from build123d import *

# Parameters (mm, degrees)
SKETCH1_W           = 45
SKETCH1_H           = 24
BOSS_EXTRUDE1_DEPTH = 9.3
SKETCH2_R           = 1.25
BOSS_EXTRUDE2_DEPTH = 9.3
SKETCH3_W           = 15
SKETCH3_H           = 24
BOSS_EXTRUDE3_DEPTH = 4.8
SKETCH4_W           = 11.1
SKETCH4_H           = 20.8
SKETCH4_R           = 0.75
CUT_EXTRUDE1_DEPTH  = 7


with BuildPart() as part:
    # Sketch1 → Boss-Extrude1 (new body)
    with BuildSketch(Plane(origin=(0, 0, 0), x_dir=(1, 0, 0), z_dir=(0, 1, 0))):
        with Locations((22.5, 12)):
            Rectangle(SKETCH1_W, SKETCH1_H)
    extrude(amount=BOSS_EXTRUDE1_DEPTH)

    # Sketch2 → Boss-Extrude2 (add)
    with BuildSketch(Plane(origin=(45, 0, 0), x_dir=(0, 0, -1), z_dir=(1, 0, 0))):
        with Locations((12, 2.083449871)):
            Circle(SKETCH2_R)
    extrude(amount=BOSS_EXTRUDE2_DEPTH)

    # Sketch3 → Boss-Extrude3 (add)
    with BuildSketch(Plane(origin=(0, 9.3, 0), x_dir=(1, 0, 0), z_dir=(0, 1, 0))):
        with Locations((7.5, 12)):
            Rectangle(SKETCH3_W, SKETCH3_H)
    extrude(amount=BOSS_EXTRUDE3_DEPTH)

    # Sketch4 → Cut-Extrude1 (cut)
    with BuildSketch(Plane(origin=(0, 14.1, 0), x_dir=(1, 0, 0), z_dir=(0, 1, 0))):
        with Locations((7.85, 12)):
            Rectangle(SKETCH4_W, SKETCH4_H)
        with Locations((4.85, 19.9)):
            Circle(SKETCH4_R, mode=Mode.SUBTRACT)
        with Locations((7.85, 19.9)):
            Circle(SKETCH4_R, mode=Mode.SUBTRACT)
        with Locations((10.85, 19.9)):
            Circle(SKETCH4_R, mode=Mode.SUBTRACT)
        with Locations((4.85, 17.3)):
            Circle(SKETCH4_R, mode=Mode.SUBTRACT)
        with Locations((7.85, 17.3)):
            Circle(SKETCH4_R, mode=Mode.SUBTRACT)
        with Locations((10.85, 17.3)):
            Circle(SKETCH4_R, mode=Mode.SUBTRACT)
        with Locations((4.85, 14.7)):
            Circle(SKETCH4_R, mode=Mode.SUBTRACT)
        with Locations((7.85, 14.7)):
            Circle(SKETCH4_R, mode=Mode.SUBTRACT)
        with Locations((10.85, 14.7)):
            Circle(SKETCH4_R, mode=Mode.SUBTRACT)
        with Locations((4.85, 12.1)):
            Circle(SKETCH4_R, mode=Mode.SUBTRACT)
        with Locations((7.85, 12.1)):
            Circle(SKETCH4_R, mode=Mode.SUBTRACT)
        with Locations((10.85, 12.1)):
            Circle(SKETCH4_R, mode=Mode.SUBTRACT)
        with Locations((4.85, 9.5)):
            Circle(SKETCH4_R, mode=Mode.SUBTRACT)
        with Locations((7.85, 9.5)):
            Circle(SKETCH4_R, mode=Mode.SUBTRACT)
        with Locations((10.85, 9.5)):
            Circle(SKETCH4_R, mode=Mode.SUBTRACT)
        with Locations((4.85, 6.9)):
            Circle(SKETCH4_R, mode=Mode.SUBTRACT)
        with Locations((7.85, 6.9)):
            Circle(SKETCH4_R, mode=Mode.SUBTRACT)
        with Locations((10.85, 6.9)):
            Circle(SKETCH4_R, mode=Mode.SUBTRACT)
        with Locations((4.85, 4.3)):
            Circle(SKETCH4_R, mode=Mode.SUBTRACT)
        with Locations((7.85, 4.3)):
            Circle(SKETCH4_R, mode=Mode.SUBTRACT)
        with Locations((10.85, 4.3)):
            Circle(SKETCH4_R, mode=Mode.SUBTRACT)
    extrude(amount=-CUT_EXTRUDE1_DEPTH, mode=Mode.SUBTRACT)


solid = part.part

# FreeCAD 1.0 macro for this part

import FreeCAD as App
import Part
import Sketcher

V = App.Vector
Q = App.Units.Quantity

doc = App.newDocument("Part")
params = doc.addObject("Spreadsheet::Sheet", "Params")
for row, (alias, value) in enumerate([
    ("sketch1_width", "45 mm"),
    ("sketch1_height", "24 mm"),
    ("pad1_length", "9.3 mm"),
    ("sketch2_diameter", "2.5 mm"),
    ("pad2_length", "9.3 mm"),
    ("sketch3_width", "15 mm"),
    ("sketch3_height", "24 mm"),
    ("pad3_length", "4.8 mm"),
    ("sketch4_diameter", "1.5 mm"),
    ("sketch4_width", "11.1 mm"),
    ("sketch4_height", "20.8 mm"),
    ("pocket1_length", "7 mm"),
], start=1):
    params.set(f"A{row}", alias)
    params.set(f"B{row}", "=" + value)
    params.setAlias(f"B{row}", alias)

body = doc.addObject("PartDesign::Body", "Body")

# Sketch on XZ plane
sketch1 = body.newObject("Sketcher::SketchObject", "Sketch")
sketch1.AttachmentSupport = (doc.getObject("XZ_Plane"), [""])
sketch1.MapMode = "FlatFace"
sketch1.addGeometry([
    Part.LineSegment(V(0, -24, 0), V(0, 0, 0)),
    Part.LineSegment(V(0, 0, 0), V(45, 0, 0)),
    Part.LineSegment(V(45, 0, 0), V(45, -24, 0)),
    Part.LineSegment(V(45, -24, 0), V(0, -24, 0)),
], False)
sketch1.addConstraint([
    Sketcher.Constraint("Coincident", 0, 2, 1, 1),
    Sketcher.Constraint("Coincident", 1, 2, 2, 1),
    Sketcher.Constraint("Coincident", 2, 2, 3, 1),
    Sketcher.Constraint("Coincident", 3, 2, 0, 1),
    Sketcher.Constraint("Vertical", 0),
    Sketcher.Constraint("Horizontal", 1),
    Sketcher.Constraint("Vertical", 2),
    Sketcher.Constraint("Horizontal", 3),
    Sketcher.Constraint("Coincident", 0, 2, -1, 1),
    Sketcher.Constraint("DistanceX", 1, 1, 1, 2, Q("45 mm")),
    Sketcher.Constraint("DistanceY", 0, 1, 0, 2, Q("24 mm")),
])
sketch1.setExpression("Constraints[9]", "Params.sketch1_width")
sketch1.setExpression("Constraints[10]", "Params.sketch1_height")
pad1 = body.newObject("PartDesign::Pad", "Pad")
pad1.Profile = sketch1
pad1.setExpression("Length", "Params.pad1_length")
pad1.Reversed = True

# Sketch on YZ plane
sketch2 = body.newObject("Sketcher::SketchObject", "Sketch001")
sketch2.AttachmentSupport = (doc.getObject("YZ_Plane"), [""])
sketch2.MapMode = "FlatFace"
sketch2.AttachmentOffset = App.Placement(V(0, 0, 45), App.Rotation())
sketch2.addGeometry(Part.Circle(V(2.08345, -12, 0), V(0, 0, 1), 1.25), False)
sketch2.addConstraint([
    Sketcher.Constraint("Diameter", 0, Q("2.5 mm")),
    Sketcher.Constraint("DistanceY", 0, 3, -1, 1, Q("12 mm")),
    Sketcher.Constraint("DistanceX", -1, 1, 0, 3, Q("2.08345 mm")),
])
sketch2.setExpression("Constraints[0]", "Params.sketch2_diameter")
pad2 = body.newObject("PartDesign::Pad", "Pad001")
pad2.Profile = sketch2
pad2.setExpression("Length", "Params.pad2_length")

# Sketch on XZ plane
sketch3 = body.newObject("Sketcher::SketchObject", "Sketch002")
sketch3.AttachmentSupport = (doc.getObject("XZ_Plane"), [""])
sketch3.MapMode = "FlatFace"
sketch3.AttachmentOffset = App.Placement(V(0, 0, -9.3), App.Rotation())
sketch3.addGeometry([
    Part.LineSegment(V(0, -24, 0), V(0, 0, 0)),
    Part.LineSegment(V(0, 0, 0), V(15, 0, 0)),
    Part.LineSegment(V(15, 0, 0), V(15, -24, 0)),
    Part.LineSegment(V(15, -24, 0), V(0, -24, 0)),
], False)
sketch3.addConstraint([
    Sketcher.Constraint("Coincident", 0, 2, 1, 1),
    Sketcher.Constraint("Coincident", 1, 2, 2, 1),
    Sketcher.Constraint("Coincident", 2, 2, 3, 1),
    Sketcher.Constraint("Coincident", 3, 2, 0, 1),
    Sketcher.Constraint("Vertical", 0),
    Sketcher.Constraint("Horizontal", 1),
    Sketcher.Constraint("Vertical", 2),
    Sketcher.Constraint("Horizontal", 3),
    Sketcher.Constraint("Coincident", 0, 2, -1, 1),
    Sketcher.Constraint("DistanceX", 1, 1, 1, 2, Q("15 mm")),
    Sketcher.Constraint("DistanceY", 0, 1, 0, 2, Q("24 mm")),
])
sketch3.setExpression("Constraints[9]", "Params.sketch3_width")
sketch3.setExpression("Constraints[10]", "Params.sketch3_height")
pad3 = body.newObject("PartDesign::Pad", "Pad002")
pad3.Profile = sketch3
pad3.setExpression("Length", "Params.pad3_length")
pad3.Reversed = True

# Sketch on XZ plane
sketch4 = body.newObject("Sketcher::SketchObject", "Sketch003")
sketch4.AttachmentSupport = (doc.getObject("XZ_Plane"), [""])
sketch4.MapMode = "FlatFace"
sketch4.AttachmentOffset = App.Placement(V(0, 0, -14.1), App.Rotation())
sketch4.addGeometry([
    Part.LineSegment(V(2.3, -22.4, 0), V(2.3, -1.6, 0)),  # 0
    Part.LineSegment(V(2.3, -1.6, 0), V(13.4, -1.6, 0)),  # 1
    Part.LineSegment(V(13.4, -1.6, 0), V(13.4, -22.4, 0)),  # 2
    Part.LineSegment(V(13.4, -22.4, 0), V(2.3, -22.4, 0)),  # 3
    Part.Circle(V(4.85, -4.3, 0), V(0, 0, 1), 0.75),  # 4
    Part.Circle(V(4.85, -6.9, 0), V(0, 0, 1), 0.75),  # 5
    Part.Circle(V(4.85, -9.5, 0), V(0, 0, 1), 0.75),  # 6
    Part.Circle(V(7.85, -4.3, 0), V(0, 0, 1), 0.75),  # 7
    Part.Circle(V(7.85, -6.9, 0), V(0, 0, 1), 0.75),  # 8
    Part.Circle(V(10.85, -4.3, 0), V(0, 0, 1), 0.75),  # 9
    Part.Circle(V(10.85, -6.9, 0), V(0, 0, 1), 0.75),  # 10
    Part.Circle(V(7.85, -9.5, 0), V(0, 0, 1), 0.75),  # 11
    Part.Circle(V(10.85, -9.5, 0), V(0, 0, 1), 0.75),  # 12
    Part.Circle(V(4.85, -12.1, 0), V(0, 0, 1), 0.75),  # 13
    Part.Circle(V(4.85, -14.7, 0), V(0, 0, 1), 0.75),  # 14
    Part.Circle(V(4.85, -17.3, 0), V(0, 0, 1), 0.75),  # 15
    Part.Circle(V(4.85, -19.9, 0), V(0, 0, 1), 0.75),  # 16
    Part.Circle(V(7.85, -12.1, 0), V(0, 0, 1), 0.75),  # 17
    Part.Circle(V(7.85, -14.7, 0), V(0, 0, 1), 0.75),  # 18
    Part.Circle(V(10.85, -12.1, 0), V(0, 0, 1), 0.75),  # 19
    Part.Circle(V(10.85, -14.7, 0), V(0, 0, 1), 0.75),  # 20
    Part.Circle(V(7.85, -17.3, 0), V(0, 0, 1), 0.75),  # 21
    Part.Circle(V(7.85, -19.9, 0), V(0, 0, 1), 0.75),  # 22
    Part.Circle(V(10.85, -17.3, 0), V(0, 0, 1), 0.75),  # 23
    Part.Circle(V(10.85, -19.9, 0), V(0, 0, 1), 0.75),  # 24
], False)
sketch4.addConstraint([
    Sketcher.Constraint("Coincident", 0, 2, 1, 1),
    Sketcher.Constraint("Coincident", 1, 2, 2, 1),
    Sketcher.Constraint("Coincident", 2, 2, 3, 1),
    Sketcher.Constraint("Coincident", 3, 2, 0, 1),
    Sketcher.Constraint("Vertical", 0),
    Sketcher.Constraint("Horizontal", 1),
    Sketcher.Constraint("Vertical", 2),
    Sketcher.Constraint("Horizontal", 3),
    Sketcher.Constraint("Equal", 4, 5),
    Sketcher.Constraint("Equal", 5, 6),
    Sketcher.Constraint("Equal", 6, 7),
    Sketcher.Constraint("Equal", 7, 8),
    Sketcher.Constraint("Equal", 8, 9),
    Sketcher.Constraint("Equal", 9, 10),
    Sketcher.Constraint("Equal", 10, 11),
    Sketcher.Constraint("Equal", 11, 12),
    Sketcher.Constraint("Equal", 12, 13),
    Sketcher.Constraint("Equal", 13, 14),
    Sketcher.Constraint("Equal", 14, 15),
    Sketcher.Constraint("Equal", 15, 16),
    Sketcher.Constraint("Equal", 16, 17),
    Sketcher.Constraint("Equal", 17, 18),
    Sketcher.Constraint("Equal", 18, 19),
    Sketcher.Constraint("Equal", 19, 20),
    Sketcher.Constraint("Equal", 20, 21),
    Sketcher.Constraint("Equal", 21, 22),
    Sketcher.Constraint("Equal", 22, 23),
    Sketcher.Constraint("Equal", 23, 24),
    Sketcher.Constraint("Horizontal", 4, 3, 7, 3),
    Sketcher.Constraint("Horizontal", 5, 3, 8, 3),
    Sketcher.Constraint("Horizontal", 7, 3, 9, 3),
    Sketcher.Constraint("Horizontal", 8, 3, 10, 3),
    Sketcher.Constraint("Horizontal", 6, 3, 11, 3),
    Sketcher.Constraint("Horizontal", 11, 3, 12, 3),
    Sketcher.Constraint("Horizontal", 13, 3, 17, 3),
    Sketcher.Constraint("Horizontal", 14, 3, 18, 3),
    Sketcher.Constraint("Horizontal", 17, 3, 19, 3),
    Sketcher.Constraint("Horizontal", 18, 3, 20, 3),
    Sketcher.Constraint("Horizontal", 15, 3, 21, 3),
    Sketcher.Constraint("Horizontal", 16, 3, 22, 3),
    Sketcher.Constraint("Horizontal", 21, 3, 23, 3),
    Sketcher.Constraint("Horizontal", 22, 3, 24, 3),
    Sketcher.Constraint("Vertical", 4, 3, 5, 3),
    Sketcher.Constraint("Vertical", 5, 3, 6, 3),
    Sketcher.Constraint("Vertical", 7, 3, 8, 3),
    Sketcher.Constraint("Vertical", 9, 3, 10, 3),
    Sketcher.Constraint("Vertical", 8, 3, 11, 3),
    Sketcher.Constraint("Vertical", 10, 3, 12, 3),
    Sketcher.Constraint("Vertical", 6, 3, 13, 3),
    Sketcher.Constraint("Vertical", 13, 3, 14, 3),
    Sketcher.Constraint("Vertical", 14, 3, 15, 3),
    Sketcher.Constraint("Vertical", 15, 3, 16, 3),
    Sketcher.Constraint("Vertical", 11, 3, 17, 3),
    Sketcher.Constraint("Vertical", 17, 3, 18, 3),
    Sketcher.Constraint("Vertical", 12, 3, 19, 3),
    Sketcher.Constraint("Vertical", 19, 3, 20, 3),
    Sketcher.Constraint("Vertical", 18, 3, 21, 3),
    Sketcher.Constraint("Vertical", 21, 3, 22, 3),
    Sketcher.Constraint("Vertical", 20, 3, 23, 3),
    Sketcher.Constraint("Vertical", 23, 3, 24, 3),
    Sketcher.Constraint("Diameter", 4, Q("1.5 mm")),
    Sketcher.Constraint("DistanceX", 1, 1, 1, 2, Q("11.1 mm")),
    Sketcher.Constraint("DistanceY", 0, 1, 0, 2, Q("20.8 mm")),
    Sketcher.Constraint("DistanceX", 4, 3, 7, 3, Q("3 mm")),
    Sketcher.Constraint("DistanceX", 7, 3, 9, 3, Q("3 mm")),
    Sketcher.Constraint("DistanceY", 4, 3, -1, 1, Q("4.3 mm")),
    Sketcher.Constraint("DistanceY", 5, 3, -1, 1, Q("6.9 mm")),
    Sketcher.Constraint("DistanceY", 6, 3, -1, 1, Q("9.5 mm")),
    Sketcher.Constraint("DistanceY", 13, 3, -1, 1, Q("12.1 mm")),
    Sketcher.Constraint("DistanceY", 14, 3, -1, 1, Q("14.7 mm")),
    Sketcher.Constraint("DistanceY", 15, 3, -1, 1, Q("17.3 mm")),
    Sketcher.Constraint("DistanceY", 16, 3, -1, 1, Q("19.9 mm")),
    Sketcher.Constraint("DistanceX", -1, 1, 0, 2, Q("2.3 mm")),
    Sketcher.Constraint("DistanceY", 0, 2, -1, 1, Q("1.6 mm")),
    Sketcher.Constraint("DistanceX", -1, 1, 4, 3, Q("4.85 mm")),
])
sketch4.setExpression("Constraints[60]", "Params.sketch4_diameter")
sketch4.setExpression("Constraints[61]", "Params.sketch4_width")
sketch4.setExpression("Constraints[62]", "Params.sketch4_height")
pocket1 = body.newObject("PartDesign::Pocket", "Pocket")
pocket1.Profile = sketch4
pocket1.setExpression("Length", "Params.pocket1_length")
pocket1.Reversed = True

doc.recompute()
